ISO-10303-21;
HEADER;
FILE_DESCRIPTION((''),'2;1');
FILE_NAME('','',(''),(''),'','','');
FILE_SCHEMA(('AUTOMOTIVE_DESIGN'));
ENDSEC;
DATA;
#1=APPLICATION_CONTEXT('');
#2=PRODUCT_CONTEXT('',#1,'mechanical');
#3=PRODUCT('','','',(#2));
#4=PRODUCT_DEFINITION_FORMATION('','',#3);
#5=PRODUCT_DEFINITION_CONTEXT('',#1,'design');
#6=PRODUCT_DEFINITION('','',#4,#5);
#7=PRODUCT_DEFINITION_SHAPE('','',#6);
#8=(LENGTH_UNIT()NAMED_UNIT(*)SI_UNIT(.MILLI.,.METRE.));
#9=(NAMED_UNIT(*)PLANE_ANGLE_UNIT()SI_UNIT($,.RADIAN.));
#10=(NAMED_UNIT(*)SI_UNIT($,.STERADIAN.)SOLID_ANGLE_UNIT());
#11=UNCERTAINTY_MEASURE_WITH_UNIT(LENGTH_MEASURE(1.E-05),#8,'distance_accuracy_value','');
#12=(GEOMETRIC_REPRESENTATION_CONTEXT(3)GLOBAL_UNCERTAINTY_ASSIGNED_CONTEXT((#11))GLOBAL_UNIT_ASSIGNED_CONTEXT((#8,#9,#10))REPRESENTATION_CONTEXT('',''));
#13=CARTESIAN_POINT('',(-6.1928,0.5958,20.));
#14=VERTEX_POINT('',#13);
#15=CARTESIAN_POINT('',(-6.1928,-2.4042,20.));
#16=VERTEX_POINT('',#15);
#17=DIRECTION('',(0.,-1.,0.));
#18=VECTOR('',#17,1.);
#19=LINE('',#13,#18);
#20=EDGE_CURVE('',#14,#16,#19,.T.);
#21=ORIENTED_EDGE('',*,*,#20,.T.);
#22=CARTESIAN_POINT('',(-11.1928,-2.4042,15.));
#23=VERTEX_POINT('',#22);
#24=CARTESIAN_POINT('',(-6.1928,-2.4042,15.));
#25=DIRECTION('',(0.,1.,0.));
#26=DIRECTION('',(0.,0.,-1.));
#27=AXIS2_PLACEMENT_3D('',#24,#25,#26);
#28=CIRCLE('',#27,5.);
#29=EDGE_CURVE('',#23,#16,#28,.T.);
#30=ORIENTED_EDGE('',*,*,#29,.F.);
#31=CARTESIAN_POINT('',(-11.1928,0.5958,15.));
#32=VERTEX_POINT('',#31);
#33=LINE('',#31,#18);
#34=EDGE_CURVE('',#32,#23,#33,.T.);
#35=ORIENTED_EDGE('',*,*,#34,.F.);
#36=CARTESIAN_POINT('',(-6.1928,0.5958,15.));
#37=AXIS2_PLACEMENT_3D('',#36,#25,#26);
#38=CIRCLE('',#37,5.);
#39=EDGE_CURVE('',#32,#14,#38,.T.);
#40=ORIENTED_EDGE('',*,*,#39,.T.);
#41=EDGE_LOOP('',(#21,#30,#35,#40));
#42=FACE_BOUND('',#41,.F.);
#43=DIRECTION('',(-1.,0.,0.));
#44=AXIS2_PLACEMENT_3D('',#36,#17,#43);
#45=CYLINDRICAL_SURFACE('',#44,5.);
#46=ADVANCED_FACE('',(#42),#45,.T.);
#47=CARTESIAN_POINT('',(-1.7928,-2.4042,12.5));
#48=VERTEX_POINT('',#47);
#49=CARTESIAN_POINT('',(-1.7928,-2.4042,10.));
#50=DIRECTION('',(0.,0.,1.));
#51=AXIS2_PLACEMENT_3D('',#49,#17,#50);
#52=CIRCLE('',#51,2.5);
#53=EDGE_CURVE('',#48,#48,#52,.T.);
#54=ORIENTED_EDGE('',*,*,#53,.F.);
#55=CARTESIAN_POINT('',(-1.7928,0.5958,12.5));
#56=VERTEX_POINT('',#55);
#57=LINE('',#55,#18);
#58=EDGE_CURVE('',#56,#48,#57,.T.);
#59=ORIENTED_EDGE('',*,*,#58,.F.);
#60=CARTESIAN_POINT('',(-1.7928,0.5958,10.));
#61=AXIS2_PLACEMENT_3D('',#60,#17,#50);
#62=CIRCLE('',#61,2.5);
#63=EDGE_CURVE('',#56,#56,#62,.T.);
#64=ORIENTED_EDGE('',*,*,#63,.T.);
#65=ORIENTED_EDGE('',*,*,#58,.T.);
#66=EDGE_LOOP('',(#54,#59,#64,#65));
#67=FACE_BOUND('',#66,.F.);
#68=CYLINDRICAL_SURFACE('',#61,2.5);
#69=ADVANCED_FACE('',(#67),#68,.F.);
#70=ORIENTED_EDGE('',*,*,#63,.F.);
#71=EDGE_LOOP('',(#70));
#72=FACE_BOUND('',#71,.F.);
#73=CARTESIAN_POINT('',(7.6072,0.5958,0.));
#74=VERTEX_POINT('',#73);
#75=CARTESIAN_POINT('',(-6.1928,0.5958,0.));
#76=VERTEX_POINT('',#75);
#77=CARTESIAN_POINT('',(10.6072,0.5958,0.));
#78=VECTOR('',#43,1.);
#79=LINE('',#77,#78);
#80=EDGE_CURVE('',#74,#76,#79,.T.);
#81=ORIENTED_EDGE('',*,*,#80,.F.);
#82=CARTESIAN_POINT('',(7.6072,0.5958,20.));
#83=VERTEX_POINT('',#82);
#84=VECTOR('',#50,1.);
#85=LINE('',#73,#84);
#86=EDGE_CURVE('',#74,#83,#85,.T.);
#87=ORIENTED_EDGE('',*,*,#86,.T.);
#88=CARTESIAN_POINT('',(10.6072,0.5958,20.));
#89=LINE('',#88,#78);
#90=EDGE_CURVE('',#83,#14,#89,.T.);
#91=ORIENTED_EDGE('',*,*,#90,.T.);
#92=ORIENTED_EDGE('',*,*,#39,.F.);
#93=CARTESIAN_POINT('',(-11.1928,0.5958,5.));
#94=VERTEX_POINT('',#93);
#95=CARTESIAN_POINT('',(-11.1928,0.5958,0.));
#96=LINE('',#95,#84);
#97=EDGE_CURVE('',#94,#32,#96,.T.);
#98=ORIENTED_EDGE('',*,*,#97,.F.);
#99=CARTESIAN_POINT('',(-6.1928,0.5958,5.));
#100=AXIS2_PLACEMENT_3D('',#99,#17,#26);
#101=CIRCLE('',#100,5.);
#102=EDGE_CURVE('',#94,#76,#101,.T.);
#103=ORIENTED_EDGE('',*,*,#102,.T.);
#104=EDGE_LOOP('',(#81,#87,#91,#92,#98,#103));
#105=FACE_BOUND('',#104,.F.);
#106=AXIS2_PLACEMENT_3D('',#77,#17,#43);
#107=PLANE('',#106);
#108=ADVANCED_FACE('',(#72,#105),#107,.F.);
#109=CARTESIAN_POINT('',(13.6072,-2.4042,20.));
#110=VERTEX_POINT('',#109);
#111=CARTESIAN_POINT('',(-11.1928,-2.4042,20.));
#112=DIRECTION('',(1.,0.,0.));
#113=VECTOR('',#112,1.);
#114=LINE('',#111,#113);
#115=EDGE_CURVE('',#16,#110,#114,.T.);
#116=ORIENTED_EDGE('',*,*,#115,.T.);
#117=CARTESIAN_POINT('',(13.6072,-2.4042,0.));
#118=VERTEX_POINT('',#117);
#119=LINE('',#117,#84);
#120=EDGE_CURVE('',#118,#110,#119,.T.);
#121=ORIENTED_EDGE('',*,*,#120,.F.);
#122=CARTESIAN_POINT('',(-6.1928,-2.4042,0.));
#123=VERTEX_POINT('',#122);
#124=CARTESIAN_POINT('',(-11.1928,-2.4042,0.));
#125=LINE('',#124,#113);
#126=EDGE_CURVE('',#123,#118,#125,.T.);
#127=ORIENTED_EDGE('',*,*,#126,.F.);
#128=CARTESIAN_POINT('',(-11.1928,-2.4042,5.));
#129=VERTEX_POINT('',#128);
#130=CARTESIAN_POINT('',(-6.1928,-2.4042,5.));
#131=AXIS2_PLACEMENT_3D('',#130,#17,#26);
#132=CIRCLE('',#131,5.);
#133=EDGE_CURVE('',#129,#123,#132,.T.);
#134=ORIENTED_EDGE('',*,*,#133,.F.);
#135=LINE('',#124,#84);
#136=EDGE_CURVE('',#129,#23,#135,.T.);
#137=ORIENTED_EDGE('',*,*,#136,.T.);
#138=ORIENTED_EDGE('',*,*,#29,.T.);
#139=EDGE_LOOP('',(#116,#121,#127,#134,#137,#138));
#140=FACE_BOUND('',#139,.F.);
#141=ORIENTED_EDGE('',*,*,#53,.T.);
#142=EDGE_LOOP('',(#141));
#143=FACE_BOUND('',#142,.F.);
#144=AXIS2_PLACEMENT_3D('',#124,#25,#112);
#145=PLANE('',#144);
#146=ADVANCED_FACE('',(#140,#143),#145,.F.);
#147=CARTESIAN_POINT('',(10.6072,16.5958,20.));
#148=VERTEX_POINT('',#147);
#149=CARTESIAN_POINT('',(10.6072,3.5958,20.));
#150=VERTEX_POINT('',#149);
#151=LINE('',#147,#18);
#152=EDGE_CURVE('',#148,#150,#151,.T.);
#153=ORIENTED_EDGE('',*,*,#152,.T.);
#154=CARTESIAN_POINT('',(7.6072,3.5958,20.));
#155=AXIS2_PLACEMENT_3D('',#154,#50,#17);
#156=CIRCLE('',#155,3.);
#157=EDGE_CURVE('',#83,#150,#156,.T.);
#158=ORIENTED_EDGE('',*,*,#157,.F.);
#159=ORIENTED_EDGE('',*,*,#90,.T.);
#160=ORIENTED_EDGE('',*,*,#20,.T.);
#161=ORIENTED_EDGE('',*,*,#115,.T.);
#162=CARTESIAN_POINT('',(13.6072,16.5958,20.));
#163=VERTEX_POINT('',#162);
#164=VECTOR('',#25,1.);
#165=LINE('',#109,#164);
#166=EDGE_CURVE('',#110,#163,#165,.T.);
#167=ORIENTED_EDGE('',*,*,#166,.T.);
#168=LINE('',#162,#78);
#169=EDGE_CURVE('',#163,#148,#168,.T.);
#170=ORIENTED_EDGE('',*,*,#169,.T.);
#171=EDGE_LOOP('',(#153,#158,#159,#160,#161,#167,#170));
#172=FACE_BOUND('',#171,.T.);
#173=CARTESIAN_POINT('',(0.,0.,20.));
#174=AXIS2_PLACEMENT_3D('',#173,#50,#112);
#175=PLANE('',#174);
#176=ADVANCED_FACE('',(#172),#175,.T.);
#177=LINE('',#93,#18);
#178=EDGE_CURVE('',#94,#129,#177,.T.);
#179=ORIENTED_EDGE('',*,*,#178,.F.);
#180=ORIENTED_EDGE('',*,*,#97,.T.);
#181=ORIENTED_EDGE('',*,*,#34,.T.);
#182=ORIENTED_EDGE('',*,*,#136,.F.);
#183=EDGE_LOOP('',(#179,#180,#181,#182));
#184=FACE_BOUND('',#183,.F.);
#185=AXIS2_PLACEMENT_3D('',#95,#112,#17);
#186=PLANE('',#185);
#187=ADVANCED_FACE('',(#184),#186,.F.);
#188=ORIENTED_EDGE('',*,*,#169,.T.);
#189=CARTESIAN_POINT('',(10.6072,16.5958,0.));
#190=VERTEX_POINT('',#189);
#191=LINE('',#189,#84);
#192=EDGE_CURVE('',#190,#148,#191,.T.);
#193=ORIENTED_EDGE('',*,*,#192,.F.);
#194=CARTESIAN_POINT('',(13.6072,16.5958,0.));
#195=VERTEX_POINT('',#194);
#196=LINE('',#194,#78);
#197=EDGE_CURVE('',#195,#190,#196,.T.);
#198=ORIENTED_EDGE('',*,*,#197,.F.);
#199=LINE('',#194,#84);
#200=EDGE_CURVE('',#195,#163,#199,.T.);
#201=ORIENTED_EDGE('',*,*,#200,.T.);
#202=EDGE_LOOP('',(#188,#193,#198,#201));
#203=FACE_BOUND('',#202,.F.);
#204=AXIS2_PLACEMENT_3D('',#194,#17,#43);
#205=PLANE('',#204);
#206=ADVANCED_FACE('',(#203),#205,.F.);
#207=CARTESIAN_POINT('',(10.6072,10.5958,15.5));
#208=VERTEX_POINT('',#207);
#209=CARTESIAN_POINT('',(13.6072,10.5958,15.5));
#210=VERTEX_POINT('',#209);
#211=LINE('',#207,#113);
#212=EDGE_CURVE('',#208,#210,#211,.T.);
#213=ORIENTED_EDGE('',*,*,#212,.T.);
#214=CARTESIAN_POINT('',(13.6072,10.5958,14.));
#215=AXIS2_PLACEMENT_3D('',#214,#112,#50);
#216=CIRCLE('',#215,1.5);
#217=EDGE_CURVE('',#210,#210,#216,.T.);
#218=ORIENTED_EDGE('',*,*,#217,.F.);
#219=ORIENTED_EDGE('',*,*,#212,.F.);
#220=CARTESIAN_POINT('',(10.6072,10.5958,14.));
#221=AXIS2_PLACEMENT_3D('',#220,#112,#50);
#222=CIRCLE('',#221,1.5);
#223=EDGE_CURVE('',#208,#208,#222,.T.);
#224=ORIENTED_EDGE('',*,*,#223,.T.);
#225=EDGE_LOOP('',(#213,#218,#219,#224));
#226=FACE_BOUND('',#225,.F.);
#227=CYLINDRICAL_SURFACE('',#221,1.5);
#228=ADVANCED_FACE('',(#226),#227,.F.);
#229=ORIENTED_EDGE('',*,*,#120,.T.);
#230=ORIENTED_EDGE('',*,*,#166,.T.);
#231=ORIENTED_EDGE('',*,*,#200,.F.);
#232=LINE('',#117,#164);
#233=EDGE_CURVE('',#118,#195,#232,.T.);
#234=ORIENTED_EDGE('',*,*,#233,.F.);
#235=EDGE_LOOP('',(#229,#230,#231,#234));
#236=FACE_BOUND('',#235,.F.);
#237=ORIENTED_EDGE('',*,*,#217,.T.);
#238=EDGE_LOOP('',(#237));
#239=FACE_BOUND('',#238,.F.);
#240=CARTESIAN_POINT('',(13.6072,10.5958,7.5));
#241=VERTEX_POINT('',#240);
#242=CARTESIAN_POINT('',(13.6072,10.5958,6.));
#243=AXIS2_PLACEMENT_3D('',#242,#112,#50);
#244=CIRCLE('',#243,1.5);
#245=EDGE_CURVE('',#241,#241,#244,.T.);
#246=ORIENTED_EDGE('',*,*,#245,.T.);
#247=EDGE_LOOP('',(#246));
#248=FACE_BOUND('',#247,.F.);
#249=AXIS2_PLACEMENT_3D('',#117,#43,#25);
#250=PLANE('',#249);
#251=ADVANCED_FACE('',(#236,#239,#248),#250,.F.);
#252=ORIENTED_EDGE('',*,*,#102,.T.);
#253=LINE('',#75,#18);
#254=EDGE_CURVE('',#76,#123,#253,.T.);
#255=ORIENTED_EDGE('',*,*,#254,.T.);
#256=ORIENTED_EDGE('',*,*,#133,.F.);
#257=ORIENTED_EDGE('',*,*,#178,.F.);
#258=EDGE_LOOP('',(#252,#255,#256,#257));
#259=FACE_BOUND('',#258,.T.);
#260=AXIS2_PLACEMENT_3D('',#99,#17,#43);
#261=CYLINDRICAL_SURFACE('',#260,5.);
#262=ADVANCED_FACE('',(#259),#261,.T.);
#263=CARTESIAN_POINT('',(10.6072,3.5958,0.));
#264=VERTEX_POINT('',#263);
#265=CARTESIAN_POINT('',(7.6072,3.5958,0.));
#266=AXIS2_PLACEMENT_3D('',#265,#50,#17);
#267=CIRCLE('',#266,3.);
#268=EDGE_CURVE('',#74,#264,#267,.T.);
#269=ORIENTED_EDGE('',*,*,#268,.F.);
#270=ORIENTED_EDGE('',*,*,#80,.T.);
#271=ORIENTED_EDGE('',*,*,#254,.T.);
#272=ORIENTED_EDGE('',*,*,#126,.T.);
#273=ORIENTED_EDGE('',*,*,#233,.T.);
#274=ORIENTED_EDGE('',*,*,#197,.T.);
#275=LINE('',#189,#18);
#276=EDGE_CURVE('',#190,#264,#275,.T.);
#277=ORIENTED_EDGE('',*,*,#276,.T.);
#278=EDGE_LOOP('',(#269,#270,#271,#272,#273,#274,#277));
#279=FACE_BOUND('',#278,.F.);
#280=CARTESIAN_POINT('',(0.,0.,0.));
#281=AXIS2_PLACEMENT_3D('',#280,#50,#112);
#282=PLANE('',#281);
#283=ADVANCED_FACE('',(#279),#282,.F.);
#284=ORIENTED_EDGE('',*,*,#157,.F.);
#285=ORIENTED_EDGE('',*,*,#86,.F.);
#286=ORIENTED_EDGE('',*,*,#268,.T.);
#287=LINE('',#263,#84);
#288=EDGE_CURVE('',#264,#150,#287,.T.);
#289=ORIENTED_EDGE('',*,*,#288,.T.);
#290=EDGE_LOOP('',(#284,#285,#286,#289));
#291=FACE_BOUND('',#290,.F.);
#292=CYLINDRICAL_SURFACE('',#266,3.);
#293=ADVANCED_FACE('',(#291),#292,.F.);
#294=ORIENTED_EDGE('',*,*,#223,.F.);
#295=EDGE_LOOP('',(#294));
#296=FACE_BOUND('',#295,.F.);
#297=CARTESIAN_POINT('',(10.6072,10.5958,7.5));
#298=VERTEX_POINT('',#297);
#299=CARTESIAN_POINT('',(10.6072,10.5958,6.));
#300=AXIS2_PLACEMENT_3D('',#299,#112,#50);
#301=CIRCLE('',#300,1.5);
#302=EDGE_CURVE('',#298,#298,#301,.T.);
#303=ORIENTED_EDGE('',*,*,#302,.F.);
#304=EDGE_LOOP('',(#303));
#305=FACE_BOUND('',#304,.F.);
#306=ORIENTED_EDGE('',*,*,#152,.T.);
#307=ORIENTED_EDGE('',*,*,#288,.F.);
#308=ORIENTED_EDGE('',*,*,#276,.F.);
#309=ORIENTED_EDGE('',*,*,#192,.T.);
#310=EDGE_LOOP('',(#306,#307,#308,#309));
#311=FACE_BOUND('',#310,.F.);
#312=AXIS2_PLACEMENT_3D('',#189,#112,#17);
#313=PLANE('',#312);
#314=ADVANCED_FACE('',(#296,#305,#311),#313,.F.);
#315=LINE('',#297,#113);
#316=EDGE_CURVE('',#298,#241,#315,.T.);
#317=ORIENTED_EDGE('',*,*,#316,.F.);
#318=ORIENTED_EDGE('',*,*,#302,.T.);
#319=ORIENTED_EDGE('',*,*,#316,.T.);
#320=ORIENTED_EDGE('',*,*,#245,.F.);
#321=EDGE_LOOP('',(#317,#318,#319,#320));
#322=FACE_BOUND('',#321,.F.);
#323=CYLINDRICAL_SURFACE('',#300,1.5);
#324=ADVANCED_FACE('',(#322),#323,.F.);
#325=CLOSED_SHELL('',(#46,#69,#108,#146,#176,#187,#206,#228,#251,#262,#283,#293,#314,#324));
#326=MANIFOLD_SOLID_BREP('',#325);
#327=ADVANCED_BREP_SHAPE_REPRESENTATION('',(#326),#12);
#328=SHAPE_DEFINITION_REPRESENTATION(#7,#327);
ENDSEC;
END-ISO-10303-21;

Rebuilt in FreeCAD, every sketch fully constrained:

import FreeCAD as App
import Part
import Sketcher

V = App.Vector


def edges_at(feature, points):
    """Names of the edges that pass closest to the given points."""
    edges = feature.Shape.Edges
    near = lambda p: min(range(len(edges)), key=lambda i: edges[i].distToShape(Part.Vertex(*p))[0])
    return sorted({f"Edge{near(p) + 1}" for p in points})


def add_polygon(sketch, points):
    """Adds a closed chain of lines whose ends are joined by coincident constraints."""
    first, n = sketch.GeometryCount, len(points)
    for a, b in zip(points, points[1:] + points[:1]):
        sketch.addGeometry(Part.LineSegment(App.Vector(*a, 0), App.Vector(*b, 0)), False)
    for i in range(n):
        sketch.addConstraint(Sketcher.Constraint("Coincident", first + i, 2, first + (i + 1) % n, 1))

doc = App.newDocument("Part")
body = doc.addObject("PartDesign::Body", "Body")

# Sketch on XY plane
sketch1 = body.newObject("Sketcher::SketchObject", "Sketch")
sketch1.AttachmentSupport = (doc.getObject("XY_Plane"), [""])
sketch1.MapMode = "FlatFace"
add_polygon(sketch1, [(-11.2, 0.6), (-11.2, -2.4), (13.6, -2.4), (13.6, 16.6), (10.6, 16.6), (10.6, 0.6)])  # lines 0-5
sketch1.addConstraint(Sketcher.Constraint("Vertical", 0))
sketch1.addConstraint(Sketcher.Constraint("Horizontal", 1))
sketch1.addConstraint(Sketcher.Constraint("Vertical", 2))
sketch1.addConstraint(Sketcher.Constraint("Horizontal", 3))
sketch1.addConstraint(Sketcher.Constraint("Vertical", 4))
sketch1.addConstraint(Sketcher.Constraint("Horizontal", 5))
sketch1.addConstraint(Sketcher.Constraint("Equal", 3, 0))
sketch1.addConstraint(Sketcher.Constraint("DistanceX", 3, 2, 3, 1, 3.0))
sketch1.addConstraint(Sketcher.Constraint("DistanceY", 2, 1, 2, 2, 19.0))
sketch1.addConstraint(Sketcher.Constraint("DistanceX", 1, 1, 1, 2, 24.8))
sketch1.addConstraint(Sketcher.Constraint("DistanceX", 0, 2, -1, 1, 11.1928))
sketch1.addConstraint(Sketcher.Constraint("DistanceY", 0, 2, -1, 1, 2.4042))
pad1 = body.newObject("PartDesign::Pad", "Pad")
pad1.Profile = sketch1
pad1.Length = 20
doc.recompute()

fillet = body.newObject("PartDesign::Fillet", "Fillet")
fillet.Base = (pad1, edges_at(pad1, [(-11.193, -0.904, 20), (-11.193, -0.904, 0)]))
fillet.Radius = 5
doc.recompute()

fillet2 = body.newObject("PartDesign::Fillet", "Fillet001")
fillet2.Base = (fillet, edges_at(fillet, [(10.607, 0.596, 10)]))
fillet2.Radius = 3

# Sketch on XZ plane
sketch2 = body.newObject("Sketcher::SketchObject", "Sketch001")
sketch2.AttachmentSupport = (doc.getObject("XZ_Plane"), [""])
sketch2.MapMode = "FlatFace"
sketch2.AttachmentOffset = App.Placement(V(0, 0, -0.5958), App.Rotation())
sketch2.addGeometry(Part.Circle(V(-1.8, 10, 0), V(0, 0, 1), 2.5), False)
sketch2.addConstraint(Sketcher.Constraint("Diameter", 0, 5.0))
sketch2.addConstraint(Sketcher.Constraint("DistanceY", -1, 1, 0, 3, 10.0))
sketch2.addConstraint(Sketcher.Constraint("DistanceX", 0, 3, -1, 1, 1.7928))
doc.recompute()
hole = body.newObject("PartDesign::Hole", "Hole")
hole.Profile = sketch2
hole.ThreadType = "None"
hole.Diameter = 5
hole.DepthType = "Dimension"
hole.Depth = 8
hole.DrillPoint = "Angled"
hole.DrillPointAngle = 118
hole.Reversed = True

# Sketch on YZ plane
sketch3 = body.newObject("Sketcher::SketchObject", "Sketch002")
sketch3.AttachmentSupport = (doc.getObject("YZ_Plane"), [""])
sketch3.MapMode = "FlatFace"
sketch3.AttachmentOffset = App.Placement(V(0, 0, 10.6072), App.Rotation())
sketch3.addGeometry(Part.Circle(V(10.6, 6, 0), V(0, 0, 1), 1.5), False)
sketch3.addGeometry(Part.Circle(V(10.6, 14, 0), V(0, 0, 1), 1.5), False)
sketch3.addConstraint(Sketcher.Constraint("Equal", 0, 1))
sketch3.addConstraint(Sketcher.Constraint("Vertical", 0, 3, 1, 3))
sketch3.addConstraint(Sketcher.Constraint("Diameter", 0, 3.0))
sketch3.addConstraint(Sketcher.Constraint("DistanceY", -1, 1, 0, 3, 6.0))
sketch3.addConstraint(Sketcher.Constraint("DistanceY", -1, 1, 1, 3, 14.0))
sketch3.addConstraint(Sketcher.Constraint("DistanceX", -1, 1, 0, 3, 10.5958))
doc.recompute()
hole2 = body.newObject("PartDesign::Hole", "Hole001")
hole2.Profile = sketch3
hole2.ThreadType = "None"
hole2.Diameter = 3
hole2.DepthType = "Dimension"
hole2.Depth = 8
hole2.DrillPoint = "Angled"
hole2.DrillPointAngle = 118
hole2.Reversed = True

doc.recompute()
